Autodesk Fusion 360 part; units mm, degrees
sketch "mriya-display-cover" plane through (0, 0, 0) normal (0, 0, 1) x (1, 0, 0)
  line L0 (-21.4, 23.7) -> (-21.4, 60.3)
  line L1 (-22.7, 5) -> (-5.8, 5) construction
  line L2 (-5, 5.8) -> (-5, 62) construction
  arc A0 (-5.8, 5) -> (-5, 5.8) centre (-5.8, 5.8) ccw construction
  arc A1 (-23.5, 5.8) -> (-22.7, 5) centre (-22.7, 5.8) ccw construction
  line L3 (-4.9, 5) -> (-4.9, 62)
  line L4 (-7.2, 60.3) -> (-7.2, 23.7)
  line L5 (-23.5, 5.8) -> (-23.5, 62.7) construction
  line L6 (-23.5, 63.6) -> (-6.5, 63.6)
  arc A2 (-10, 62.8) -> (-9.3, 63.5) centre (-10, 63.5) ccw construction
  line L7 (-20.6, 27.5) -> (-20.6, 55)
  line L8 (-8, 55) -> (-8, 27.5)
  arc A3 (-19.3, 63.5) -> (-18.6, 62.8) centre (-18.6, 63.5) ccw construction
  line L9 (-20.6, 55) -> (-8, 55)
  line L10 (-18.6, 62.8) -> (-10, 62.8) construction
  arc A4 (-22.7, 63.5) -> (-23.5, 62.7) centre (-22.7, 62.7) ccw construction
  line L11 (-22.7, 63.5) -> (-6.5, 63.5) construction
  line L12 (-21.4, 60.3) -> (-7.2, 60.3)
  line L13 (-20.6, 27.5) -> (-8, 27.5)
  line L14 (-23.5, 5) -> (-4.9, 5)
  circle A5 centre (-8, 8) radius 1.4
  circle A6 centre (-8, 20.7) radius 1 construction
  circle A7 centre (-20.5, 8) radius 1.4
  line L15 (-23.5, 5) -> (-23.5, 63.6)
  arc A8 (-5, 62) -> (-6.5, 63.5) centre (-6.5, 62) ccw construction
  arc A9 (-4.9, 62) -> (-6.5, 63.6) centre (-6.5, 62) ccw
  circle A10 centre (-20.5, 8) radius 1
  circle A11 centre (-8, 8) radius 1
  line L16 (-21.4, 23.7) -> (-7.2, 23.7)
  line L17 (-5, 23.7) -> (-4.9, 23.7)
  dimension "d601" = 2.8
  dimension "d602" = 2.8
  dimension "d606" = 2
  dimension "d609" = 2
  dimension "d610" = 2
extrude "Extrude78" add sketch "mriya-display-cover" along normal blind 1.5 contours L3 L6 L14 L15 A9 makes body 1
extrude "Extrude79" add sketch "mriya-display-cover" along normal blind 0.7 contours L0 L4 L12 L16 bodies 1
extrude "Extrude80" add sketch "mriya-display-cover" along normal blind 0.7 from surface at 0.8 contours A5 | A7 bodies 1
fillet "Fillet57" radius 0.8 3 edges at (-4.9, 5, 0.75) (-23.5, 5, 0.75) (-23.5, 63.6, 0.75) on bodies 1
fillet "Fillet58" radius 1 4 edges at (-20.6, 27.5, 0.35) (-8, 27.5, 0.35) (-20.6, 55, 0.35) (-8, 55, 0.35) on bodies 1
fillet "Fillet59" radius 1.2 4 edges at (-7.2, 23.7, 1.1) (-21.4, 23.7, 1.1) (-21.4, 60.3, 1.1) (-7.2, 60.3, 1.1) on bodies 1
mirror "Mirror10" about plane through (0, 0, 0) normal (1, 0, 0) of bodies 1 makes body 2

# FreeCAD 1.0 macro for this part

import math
import FreeCAD as App
import Part
import Sketcher
from FreeCAD import Vector
Q = App.Units.Quantity


def edges_at(feature, points):
    """Names of the edges that pass closest to the given points."""
    edges = feature.Shape.Edges
    near = lambda p: min(range(len(edges)), key=lambda i: edges[i].distToShape(Part.Vertex(*p))[0])
    return sorted({f"Edge{near(p) + 1}" for p in points})


def add_polygon(sketch, points):
    """Adds a closed chain of lines whose ends are joined by coincident constraints."""
    first, n = sketch.GeometryCount, len(points)
    for a, b in zip(points, points[1:] + points[:1]):
        sketch.addGeometry(Part.LineSegment(App.Vector(*a, 0), App.Vector(*b, 0)), False)
    for i in range(n):
        sketch.addConstraint(Sketcher.Constraint("Coincident", first + i, 2, first + (i + 1) % n, 1))

doc = App.newDocument("Part")
body = doc.addObject("PartDesign::Body", "Body")
body.AllowCompound = True

# Sketch on XY plane
sketch1 = body.newObject("Sketcher::SketchObject", "Sketch")
sketch1.AttachmentSupport = (doc.getObject("XY_Plane"), [""])
sketch1.MapMode = "FlatFace"
sketch1.addGeometry(Part.LineSegment(Vector(-23.5, 5, 0), Vector(-4.9, 5, 0)), False)  # 0
sketch1.addGeometry(Part.LineSegment(Vector(-4.9, 5, 0), Vector(-4.9, 62, 0)), False)  # 1
sketch1.addGeometry(Part.ArcOfCircle(Part.Circle(Vector(-6.5, 62, 0), Vector(0, 0, 1), 1.6), math.radians(0), math.radians(90)), False)  # 2
sketch1.addGeometry(Part.LineSegment(Vector(-6.5, 63.6, 0), Vector(-23.5, 63.6, 0)), False)  # 3
sketch1.addGeometry(Part.LineSegment(Vector(-23.5, 63.6, 0), Vector(-23.5, 5, 0)), False)  # 4
sketch1.addGeometry(Part.Circle(Vector(-20.5, 8, 0), Vector(0, 0, 1), 1.4), False)  # 5
sketch1.addGeometry(Part.Circle(Vector(-8, 8, 0), Vector(0, 0, 1), 1.4), False)  # 6
add_polygon(sketch1, [(-7.2, 23.7), (-21.4, 23.7), (-21.4, 60.3), (-7.2, 60.3)])  # lines 7-10
sketch1.addConstraint([
    Sketcher.Constraint("Coincident", 0, 2, 1, 1),
    Sketcher.Constraint("Tangent", 1, 2, 2, 1),
    Sketcher.Constraint("Tangent", 2, 2, 3, 1),
    Sketcher.Constraint("Coincident", 3, 2, 4, 1),
    Sketcher.Constraint("Coincident", 4, 2, 0, 1),
    Sketcher.Constraint("Horizontal", 0),
    Sketcher.Constraint("Vertical", 1),
    Sketcher.Constraint("Horizontal", 3),
    Sketcher.Constraint("Vertical", 4),
    Sketcher.Constraint("Horizontal", 7),
    Sketcher.Constraint("Vertical", 8),
    Sketcher.Constraint("Horizontal", 9),
    Sketcher.Constraint("Vertical", 10),
    Sketcher.Constraint("Equal", 5, 6),
    Sketcher.Constraint("Horizontal", 5, 3, 6, 3),
    Sketcher.Constraint("Diameter", 5, Q("2.8 mm")),
    Sketcher.Constraint("Radius", 2, Q("1.6 mm")),
    Sketcher.Constraint("DistanceX", 3, 2, 3, 1, Q("17 mm")),
    Sketcher.Constraint("DistanceY", 1, 1, 1, 2, Q("57 mm")),
    Sketcher.Constraint("DistanceX", 7, 2, 7, 1, Q("14.2 mm")),
    Sketcher.Constraint("DistanceY", 8, 1, 8, 2, Q("36.6 mm")),
    Sketcher.Constraint("DistanceY", -1, 1, 2, 3, Q("62 mm")),
    Sketcher.Constraint("DistanceY", -1, 1, 5, 3, Q("8 mm")),
    Sketcher.Constraint("DistanceX", 6, 3, -1, 1, Q("8 mm")),
    Sketcher.Constraint("DistanceX", 5, 3, 2, 3, Q("14 mm")),
    Sketcher.Constraint("DistanceX", 2, 3, -1, 1, Q("6.5 mm")),
    Sketcher.Constraint("DistanceX", 7, 2, -1, 1, Q("21.4 mm")),
    Sketcher.Constraint("DistanceY", -1, 1, 7, 2, Q("23.7 mm")),
])
pad1 = body.newObject("PartDesign::Pad", "Pad")
pad1.Profile = sketch1
pad1.Length = 1.5

# Sketch on XY plane
sketch2 = body.newObject("Sketcher::SketchObject", "Sketch001")
sketch2.AttachmentSupport = (doc.getObject("XY_Plane"), [""])
sketch2.MapMode = "FlatFace"
add_polygon(sketch2, [(-21, 60), (-21, 24), (-7, 24), (-7, 60)])  # lines 0-3
add_polygon(sketch2, [(-8, 28), (-21, 28), (-21, 55), (-8, 55)])  # lines 4-7
sketch2.addConstraint([
    Sketcher.Constraint("Vertical", 0),
    Sketcher.Constraint("Horizontal", 1),
    Sketcher.Constraint("Vertical", 2),
    Sketcher.Constraint("Horizontal", 3),
    Sketcher.Constraint("Horizontal", 4),
    Sketcher.Constraint("Vertical", 5),
    Sketcher.Constraint("Horizontal", 6),
    Sketcher.Constraint("Vertical", 7),
    Sketcher.Constraint("DistanceX", 1, 1, 1, 2, Q("14.2 mm")),
    Sketcher.Constraint("DistanceX", 4, 2, 4, 1, Q("12.6 mm")),
    Sketcher.Constraint("DistanceY", 0, 2, 0, 1, Q("36.6 mm")),
    Sketcher.Constraint("DistanceY", 5, 1, 5, 2, Q("27.5 mm")),
    Sketcher.Constraint("DistanceY", -1, 1, 5, 2, Q("55 mm")),
    Sketcher.Constraint("DistanceX", 6, 2, -1, 1, Q("8 mm")),
    Sketcher.Constraint("DistanceX", 0, 2, -1, 1, Q("21.4 mm")),
    Sketcher.Constraint("DistanceY", -1, 1, 0, 2, Q("23.7 mm")),
])
pad2 = body.newObject("PartDesign::Pad", "Pad001")
pad2.Profile = sketch2
pad2.Length = 0.7

# Sketch on XY plane
sketch3 = body.newObject("Sketcher::SketchObject", "Sketch002")
sketch3.AttachmentSupport = (doc.getObject("XY_Plane"), [""])
sketch3.MapMode = "FlatFace"
sketch3.AttachmentOffset = App.Placement(Vector(0, 0, 0.8), App.Rotation())
sketch3.addGeometry([
    Part.Circle(Vector(-8, 8, 0), Vector(0, 0, 1), 1.4),
    Part.Circle(Vector(-8, 8, 0), Vector(0, 0, 1), 1),
    Part.Circle(Vector(-20.5, 8, 0), Vector(0, 0, 1), 1.4),
    Part.Circle(Vector(-20.5, 8, 0), Vector(0, 0, 1), 1),
], False)
sketch3.addConstraint([
    Sketcher.Constraint("Coincident", 1, 3, 0, 3),
    Sketcher.Constraint("Coincident", 3, 3, 2, 3),
    Sketcher.Constraint("Equal", 0, 2),
    Sketcher.Constraint("Equal", 1, 3),
    Sketcher.Constraint("Horizontal", 1, 3, 2, 3),
    Sketcher.Constraint("Diameter", 1, Q("2 mm")),
    Sketcher.Constraint("Diameter", 0, Q("2.8 mm")),
    Sketcher.Constraint("DistanceX", 0, 3, -1, 1, Q("8 mm")),
    Sketcher.Constraint("DistanceY", -1, 1, 0, 3, Q("8 mm")),
    Sketcher.Constraint("DistanceX", 2, 3, -1, 1, Q("20.5 mm")),
])
pad3 = body.newObject("PartDesign::Pad", "Pad002")
pad3.Profile = sketch3
pad3.Length = 0.7
doc.recompute()

fillet = body.newObject("PartDesign::Fillet", "Fillet")
fillet.Base = (pad3, edges_at(pad3, [(-4.9, 5, 0.75), (-23.5, 5, 0.75), (-23.5, 63.6, 0.75)]))
fillet.Radius = 0.8
doc.recompute()

fillet2 = body.newObject("PartDesign::Fillet", "Fillet001")
fillet2.Base = (fillet, edges_at(fillet, [
    (-20.6, 27.5, 0.35),
    (-8, 27.5, 0.35),
    (-20.6, 55, 0.35),
    (-8, 55, 0.35),
]))
fillet2.Radius = 1
doc.recompute()

fillet3 = body.newObject("PartDesign::Fillet", "Fillet002")
fillet3.Base = (fillet2, edges_at(fillet2, [
    (-7.2, 23.7, 1.1),
    (-21.4, 23.7, 1.1),
    (-21.4, 60.3, 1.1),
    (-7.2, 60.3, 1.1),
]))
fillet3.Radius = 1.2
doc.recompute()

mirrored = body.newObject("PartDesign::Mirrored", "Mirrored")
mirrored.TransformMode = "Transform body"
mirrored.MirrorPlane = (doc.getObject("YZ_Plane"), [""])
body.Tip = mirrored

doc.recompute()
